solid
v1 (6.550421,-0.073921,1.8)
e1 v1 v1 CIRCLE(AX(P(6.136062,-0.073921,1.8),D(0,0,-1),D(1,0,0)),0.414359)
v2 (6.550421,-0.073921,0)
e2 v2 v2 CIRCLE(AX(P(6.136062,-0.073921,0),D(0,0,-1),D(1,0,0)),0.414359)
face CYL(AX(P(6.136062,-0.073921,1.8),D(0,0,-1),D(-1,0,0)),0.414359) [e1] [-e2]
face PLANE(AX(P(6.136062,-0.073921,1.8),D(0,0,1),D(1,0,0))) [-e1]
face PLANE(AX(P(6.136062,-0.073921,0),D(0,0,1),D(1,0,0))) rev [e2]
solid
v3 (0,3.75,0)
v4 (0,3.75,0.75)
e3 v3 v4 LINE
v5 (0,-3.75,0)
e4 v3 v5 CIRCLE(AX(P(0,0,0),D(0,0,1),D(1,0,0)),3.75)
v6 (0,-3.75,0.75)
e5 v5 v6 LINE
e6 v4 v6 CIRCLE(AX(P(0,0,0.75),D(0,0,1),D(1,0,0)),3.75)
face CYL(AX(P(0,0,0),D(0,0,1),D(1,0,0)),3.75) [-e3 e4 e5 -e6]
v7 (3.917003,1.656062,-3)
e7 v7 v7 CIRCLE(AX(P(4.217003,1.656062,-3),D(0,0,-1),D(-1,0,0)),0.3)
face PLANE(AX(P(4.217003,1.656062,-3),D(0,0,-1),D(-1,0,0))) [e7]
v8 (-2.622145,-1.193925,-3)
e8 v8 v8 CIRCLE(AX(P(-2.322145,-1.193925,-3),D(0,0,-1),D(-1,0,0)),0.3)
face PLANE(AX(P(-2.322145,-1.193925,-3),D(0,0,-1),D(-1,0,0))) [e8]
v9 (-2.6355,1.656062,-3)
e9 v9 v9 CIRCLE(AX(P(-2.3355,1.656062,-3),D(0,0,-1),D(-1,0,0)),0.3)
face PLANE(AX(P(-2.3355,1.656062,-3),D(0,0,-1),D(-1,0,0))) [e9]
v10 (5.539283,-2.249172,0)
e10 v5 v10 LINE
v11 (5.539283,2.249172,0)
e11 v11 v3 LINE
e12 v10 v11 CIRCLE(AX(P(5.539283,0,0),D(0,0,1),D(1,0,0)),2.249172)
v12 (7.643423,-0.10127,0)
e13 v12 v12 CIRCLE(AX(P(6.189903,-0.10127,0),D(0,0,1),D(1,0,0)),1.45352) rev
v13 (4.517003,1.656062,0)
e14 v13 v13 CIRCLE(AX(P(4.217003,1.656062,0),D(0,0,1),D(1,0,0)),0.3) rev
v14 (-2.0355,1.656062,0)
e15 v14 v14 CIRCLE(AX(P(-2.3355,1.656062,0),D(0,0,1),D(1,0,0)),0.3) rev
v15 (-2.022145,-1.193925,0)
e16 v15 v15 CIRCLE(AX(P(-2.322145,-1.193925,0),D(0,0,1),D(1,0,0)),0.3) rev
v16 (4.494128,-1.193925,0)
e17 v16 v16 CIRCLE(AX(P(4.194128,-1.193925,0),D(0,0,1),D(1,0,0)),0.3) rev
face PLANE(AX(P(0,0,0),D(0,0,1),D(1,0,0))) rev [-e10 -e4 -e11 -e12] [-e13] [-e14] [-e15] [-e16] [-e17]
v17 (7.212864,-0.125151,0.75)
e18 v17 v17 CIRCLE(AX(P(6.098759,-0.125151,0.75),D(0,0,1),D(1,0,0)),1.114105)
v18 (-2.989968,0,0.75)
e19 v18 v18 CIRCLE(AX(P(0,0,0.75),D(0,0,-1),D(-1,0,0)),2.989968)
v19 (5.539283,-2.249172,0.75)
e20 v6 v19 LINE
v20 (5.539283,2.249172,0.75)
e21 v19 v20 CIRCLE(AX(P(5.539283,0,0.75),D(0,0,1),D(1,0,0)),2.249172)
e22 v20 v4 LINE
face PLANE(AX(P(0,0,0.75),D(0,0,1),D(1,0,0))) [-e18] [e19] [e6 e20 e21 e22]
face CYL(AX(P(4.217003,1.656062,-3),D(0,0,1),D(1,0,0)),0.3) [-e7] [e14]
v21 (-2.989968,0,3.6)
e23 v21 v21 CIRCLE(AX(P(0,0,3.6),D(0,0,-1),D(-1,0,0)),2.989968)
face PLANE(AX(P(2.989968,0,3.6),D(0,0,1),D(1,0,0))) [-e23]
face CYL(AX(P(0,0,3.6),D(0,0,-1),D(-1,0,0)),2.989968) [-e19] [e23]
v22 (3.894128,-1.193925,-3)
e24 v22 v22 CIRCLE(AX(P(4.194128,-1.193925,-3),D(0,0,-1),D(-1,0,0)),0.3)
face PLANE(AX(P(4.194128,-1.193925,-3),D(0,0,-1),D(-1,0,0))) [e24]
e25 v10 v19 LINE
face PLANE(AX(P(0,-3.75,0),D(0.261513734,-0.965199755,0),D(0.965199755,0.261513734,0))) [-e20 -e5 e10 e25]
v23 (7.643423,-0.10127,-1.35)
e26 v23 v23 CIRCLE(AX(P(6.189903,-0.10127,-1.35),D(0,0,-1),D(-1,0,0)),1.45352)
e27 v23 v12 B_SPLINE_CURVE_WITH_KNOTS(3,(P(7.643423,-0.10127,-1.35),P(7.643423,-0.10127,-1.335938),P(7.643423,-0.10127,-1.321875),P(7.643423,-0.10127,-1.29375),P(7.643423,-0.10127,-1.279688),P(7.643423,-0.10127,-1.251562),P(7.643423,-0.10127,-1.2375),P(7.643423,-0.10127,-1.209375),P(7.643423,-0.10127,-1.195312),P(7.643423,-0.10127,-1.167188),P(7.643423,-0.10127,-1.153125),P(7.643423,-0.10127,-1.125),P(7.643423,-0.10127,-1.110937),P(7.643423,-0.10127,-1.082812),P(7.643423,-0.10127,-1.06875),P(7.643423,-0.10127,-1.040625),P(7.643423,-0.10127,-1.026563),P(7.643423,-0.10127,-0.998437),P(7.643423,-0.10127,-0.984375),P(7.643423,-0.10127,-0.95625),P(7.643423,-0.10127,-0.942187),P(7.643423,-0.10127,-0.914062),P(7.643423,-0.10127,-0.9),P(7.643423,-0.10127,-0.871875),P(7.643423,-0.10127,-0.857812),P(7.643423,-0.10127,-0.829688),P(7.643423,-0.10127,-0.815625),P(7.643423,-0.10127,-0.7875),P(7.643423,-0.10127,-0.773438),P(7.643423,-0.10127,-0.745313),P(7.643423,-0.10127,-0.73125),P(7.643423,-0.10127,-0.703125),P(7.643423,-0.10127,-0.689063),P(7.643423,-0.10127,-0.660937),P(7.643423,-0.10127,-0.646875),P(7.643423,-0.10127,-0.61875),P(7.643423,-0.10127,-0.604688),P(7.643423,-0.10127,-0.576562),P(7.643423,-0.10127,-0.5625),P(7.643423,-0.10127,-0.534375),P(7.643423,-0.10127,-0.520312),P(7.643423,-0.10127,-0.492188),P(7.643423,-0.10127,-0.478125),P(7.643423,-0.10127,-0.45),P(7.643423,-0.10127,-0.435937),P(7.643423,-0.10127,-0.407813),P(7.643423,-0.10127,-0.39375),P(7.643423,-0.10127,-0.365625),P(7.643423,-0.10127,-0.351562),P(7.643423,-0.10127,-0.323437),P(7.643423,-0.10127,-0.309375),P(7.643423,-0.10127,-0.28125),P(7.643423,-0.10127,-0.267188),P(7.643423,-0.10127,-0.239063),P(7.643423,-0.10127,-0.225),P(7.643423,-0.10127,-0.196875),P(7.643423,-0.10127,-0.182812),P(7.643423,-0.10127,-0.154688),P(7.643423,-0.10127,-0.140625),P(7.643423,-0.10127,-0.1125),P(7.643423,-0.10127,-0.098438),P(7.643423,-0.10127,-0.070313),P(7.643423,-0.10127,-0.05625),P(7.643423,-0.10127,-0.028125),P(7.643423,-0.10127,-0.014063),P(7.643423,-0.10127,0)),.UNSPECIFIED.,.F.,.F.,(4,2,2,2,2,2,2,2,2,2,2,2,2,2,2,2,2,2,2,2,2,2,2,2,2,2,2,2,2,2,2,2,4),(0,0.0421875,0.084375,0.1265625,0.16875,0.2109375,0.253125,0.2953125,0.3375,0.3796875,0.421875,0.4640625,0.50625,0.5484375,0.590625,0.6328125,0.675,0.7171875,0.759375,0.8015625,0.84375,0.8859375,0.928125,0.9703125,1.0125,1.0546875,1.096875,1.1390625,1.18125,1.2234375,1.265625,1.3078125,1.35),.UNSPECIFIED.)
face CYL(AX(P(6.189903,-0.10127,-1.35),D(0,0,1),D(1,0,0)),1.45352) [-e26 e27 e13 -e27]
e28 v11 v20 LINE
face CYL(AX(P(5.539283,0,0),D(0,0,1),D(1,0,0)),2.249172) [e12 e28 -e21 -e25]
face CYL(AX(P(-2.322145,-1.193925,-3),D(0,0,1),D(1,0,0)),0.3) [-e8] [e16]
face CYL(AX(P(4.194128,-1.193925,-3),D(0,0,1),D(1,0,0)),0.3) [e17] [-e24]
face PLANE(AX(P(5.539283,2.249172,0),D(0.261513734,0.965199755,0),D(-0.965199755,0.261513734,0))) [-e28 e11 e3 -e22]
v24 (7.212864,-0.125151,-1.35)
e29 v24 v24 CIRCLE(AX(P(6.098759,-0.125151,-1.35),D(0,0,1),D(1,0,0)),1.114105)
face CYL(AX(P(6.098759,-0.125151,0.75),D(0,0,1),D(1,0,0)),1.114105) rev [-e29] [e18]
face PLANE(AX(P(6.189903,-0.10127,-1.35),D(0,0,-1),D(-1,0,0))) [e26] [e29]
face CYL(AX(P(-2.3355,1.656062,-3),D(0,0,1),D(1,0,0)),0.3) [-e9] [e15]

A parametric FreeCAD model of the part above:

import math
import FreeCAD as App
import Part
import Sketcher

V = App.Vector

doc = App.newDocument("Part")
body = doc.addObject("PartDesign::Body", "Body")

# Sketch on XY plane
sketch1 = body.newObject("Sketcher::SketchObject", "Sketch")
sketch1.AttachmentSupport = (doc.getObject("XY_Plane"), [""])
sketch1.MapMode = "FlatFace"
sketch1.AttachmentOffset = App.Placement(V(0, 0, 0.75), App.Rotation())
sketch1.addGeometry([
    Part.LineSegment(V(0, -3.75, 0), V(5.539283, -2.249172, 0)),
    Part.ArcOfCircle(Part.Circle(V(5.539283, 0, 0), V(0, 0, 1), 2.249172), math.radians(-90), math.radians(90)),
    Part.LineSegment(V(5.539283, 2.249172, 0), V(0, 3.75, 0)),
    Part.ArcOfCircle(Part.Circle(V(0, 0, 0), V(0, 0, 1), 3.75), math.radians(90), math.radians(270)),
], False)
sketch1.addConstraint([
    Sketcher.Constraint("Coincident", 0, 2, 1, 1),
    Sketcher.Constraint("Coincident", 1, 2, 2, 1),
    Sketcher.Constraint("Coincident", 2, 2, 3, 1),
    Sketcher.Constraint("Coincident", 3, 2, 0, 1),
    Sketcher.Constraint("Coincident", 3, 3, -1, 1),
    Sketcher.Constraint("Symmetric", 0, 2, 1, 2, -1),
    Sketcher.Constraint("PointOnObject", 2, 2, -2),
    Sketcher.Constraint("PointOnObject", 3, 2, -2),
    Sketcher.Constraint("Vertical", 1, 3, 0, 2),
    Sketcher.Constraint("Radius", 3, 3.75),
    Sketcher.Constraint("Radius", 1, 2.249172),
    Sketcher.Constraint("Distance", 0, 5.739002),
])
pad1 = body.newObject("PartDesign::Pad", "Pad")
pad1.Profile = sketch1
pad1.Length = 0.75
pad1.Reversed = True

# Sketch on XY plane
sketch2 = body.newObject("Sketcher::SketchObject", "Sketch001")
sketch2.AttachmentSupport = (doc.getObject("XY_Plane"), [""])
sketch2.MapMode = "FlatFace"
sketch2.addGeometry(Part.Circle(V(6.189903, -0.10127, 0), V(0, 0, 1), 1.45352), False)
sketch2.addConstraint([
    Sketcher.Constraint("Diameter", 0, 2.90704),
    Sketcher.Constraint("DistanceY", 0, 3, -1, 1, 0.10127),
    Sketcher.Constraint("DistanceX", -1, 1, 0, 3, 6.189903),
])
pad2 = body.newObject("PartDesign::Pad", "Pad001")
pad2.Profile = sketch2
pad2.Length = 1.35
pad2.Reversed = True

# Sketch on XY plane
sketch3 = body.newObject("Sketcher::SketchObject", "Sketch002")
sketch3.AttachmentSupport = (doc.getObject("XY_Plane"), [""])
sketch3.MapMode = "FlatFace"
sketch3.AttachmentOffset = App.Placement(V(0, 0, 0.75), App.Rotation())
sketch3.addGeometry(Part.Circle(V(6.098759, -0.125151, 0), V(0, 0, 1), 1.114105), False)
sketch3.addConstraint([
    Sketcher.Constraint("Diameter", 0, 2.22821),
    Sketcher.Constraint("DistanceX", -1, 1, 0, 3, 6.098759),
    Sketcher.Constraint("DistanceY", 0, 3, -1, 1, 0.125151),
])
doc.recompute()
hole = body.newObject("PartDesign::Hole", "Hole")
hole.Profile = sketch3
hole.ThreadType = "None"
hole.Diameter = 2.22821
hole.DepthType = "ThroughAll"

# Sketch on XY plane
sketch4 = body.newObject("Sketcher::SketchObject", "Sketch003")
sketch4.AttachmentSupport = (doc.getObject("XY_Plane"), [""])
sketch4.MapMode = "FlatFace"
sketch4.addGeometry(Part.Circle(V(4.194128, -1.193925, 0), V(0, 0, 1), 0.3), False)
sketch4.addConstraint([
    Sketcher.Constraint("Diameter", 0, 0.6),
    Sketcher.Constraint("DistanceX", -1, 1, 0, 3, 4.194128),
    Sketcher.Constraint("DistanceY", 0, 3, -1, 1, 1.193925),
])
pad3 = body.newObject("PartDesign::Pad", "Pad002")
pad3.Profile = sketch4
pad3.Length = 3
pad3.Reversed = True

# Sketch on XY plane
sketch5 = body.newObject("Sketcher::SketchObject", "Sketch004")
sketch5.AttachmentSupport = (doc.getObject("XY_Plane"), [""])
sketch5.MapMode = "FlatFace"
sketch5.addGeometry(Part.Circle(V(-2.322145, -1.193925, 0), V(0, 0, 1), 0.3), False)
sketch5.addConstraint([
    Sketcher.Constraint("Diameter", 0, 0.6),
    Sketcher.Constraint("DistanceX", 0, 3, -1, 1, 2.322145),
    Sketcher.Constraint("DistanceY", 0, 3, -1, 1, 1.193925),
])
pad4 = body.newObject("PartDesign::Pad", "Pad003")
pad4.Profile = sketch5
pad4.Length = 3
pad4.Reversed = True

# Sketch on XY plane
sketch6 = body.newObject("Sketcher::SketchObject", "Sketch005")
sketch6.AttachmentSupport = (doc.getObject("XY_Plane"), [""])
sketch6.MapMode = "FlatFace"
sketch6.addGeometry(Part.Circle(V(4.217003, 1.656062, 0), V(0, 0, 1), 0.3), False)
sketch6.addConstraint([
    Sketcher.Constraint("Diameter", 0, 0.6),
    Sketcher.Constraint("DistanceY", -1, 1, 0, 3, 1.656062),
    Sketcher.Constraint("DistanceX", -1, 1, 0, 3, 4.217003),
])
pad5 = body.newObject("PartDesign::Pad", "Pad004")
pad5.Profile = sketch6
pad5.Length = 3
pad5.Reversed = True

# Sketch on XY plane
sketch7 = body.newObject("Sketcher::SketchObject", "Sketch006")
sketch7.AttachmentSupport = (doc.getObject("XY_Plane"), [""])
sketch7.MapMode = "FlatFace"
sketch7.addGeometry(Part.Circle(V(-2.3355, 1.656062, 0), V(0, 0, 1), 0.3), False)
sketch7.addConstraint([
    Sketcher.Constraint("Diameter", 0, 0.6),
    Sketcher.Constraint("DistanceX", 0, 3, -1, 1, 2.3355),
    Sketcher.Constraint("DistanceY", -1, 1, 0, 3, 1.656062),
])
pad6 = body.newObject("PartDesign::Pad", "Pad005")
pad6.Profile = sketch7
pad6.Length = 3
pad6.Reversed = True

# Sketch on XZ plane
sketch8 = body.newObject("Sketcher::SketchObject", "Sketch007")
sketch8.AttachmentSupport = (doc.getObject("XZ_Plane"), [""])
sketch8.MapMode = "FlatFace"
sketch8.addGeometry([
    Part.LineSegment(V(0, 3.6, 0), V(0, 0.75, 0)),
    Part.LineSegment(V(0, 0.75, 0), V(2.989968, 0.75, 0)),
    Part.LineSegment(V(2.989968, 0.75, 0), V(2.989968, 3.6, 0)),
    Part.LineSegment(V(2.989968, 3.6, 0), V(0, 3.6, 0)),
], False)
sketch8.addConstraint([
    Sketcher.Constraint("Coincident", 0, 2, 1, 1),
    Sketcher.Constraint("Coincident", 1, 2, 2, 1),
    Sketcher.Constraint("Coincident", 2, 2, 3, 1),
    Sketcher.Constraint("Coincident", 3, 2, 0, 1),
    Sketcher.Constraint("Vertical", 0),
    Sketcher.Constraint("Horizontal", 1),
    Sketcher.Constraint("Vertical", 2),
    Sketcher.Constraint("Horizontal", 3),
    Sketcher.Constraint("PointOnObject", 0, 2, -2),
    Sketcher.Constraint("DistanceY", 0, 2, 0, 1, 2.85),
    Sketcher.Constraint("DistanceY", -1, 1, 2, 2, 3.6),
    Sketcher.Constraint("DistanceX", 1, 1, 1, 2, 2.989968),
])
revolution = body.newObject("PartDesign::Revolution", "Revolution")
revolution.Profile = sketch8
revolution.ReferenceAxis = (sketch8, ["V_Axis"])
revolution.Angle = 360
body2 = doc.addObject("PartDesign::Body", "Body001")

# Sketch on XY plane
sketch9 = body2.newObject("Sketcher::SketchObject", "Sketch008")
sketch9.AttachmentSupport = (doc.getObject("XY_Plane001"), [""])
sketch9.MapMode = "FlatFace"
sketch9.addGeometry(Part.Circle(V(6.136062, -0.073921, 0), V(0, 0, 1), 0.414359), False)
sketch9.addConstraint([
    Sketcher.Constraint("Diameter", 0, 0.828717),
    Sketcher.Constraint("DistanceY", 0, 3, -1, 1, 0.073921),
    Sketcher.Constraint("DistanceX", -1, 1, 0, 3, 6.136062),
])
pad7 = body2.newObject("PartDesign::Pad", "Pad006")
pad7.Profile = sketch9
pad7.Length = 1.8

doc.recompute()
